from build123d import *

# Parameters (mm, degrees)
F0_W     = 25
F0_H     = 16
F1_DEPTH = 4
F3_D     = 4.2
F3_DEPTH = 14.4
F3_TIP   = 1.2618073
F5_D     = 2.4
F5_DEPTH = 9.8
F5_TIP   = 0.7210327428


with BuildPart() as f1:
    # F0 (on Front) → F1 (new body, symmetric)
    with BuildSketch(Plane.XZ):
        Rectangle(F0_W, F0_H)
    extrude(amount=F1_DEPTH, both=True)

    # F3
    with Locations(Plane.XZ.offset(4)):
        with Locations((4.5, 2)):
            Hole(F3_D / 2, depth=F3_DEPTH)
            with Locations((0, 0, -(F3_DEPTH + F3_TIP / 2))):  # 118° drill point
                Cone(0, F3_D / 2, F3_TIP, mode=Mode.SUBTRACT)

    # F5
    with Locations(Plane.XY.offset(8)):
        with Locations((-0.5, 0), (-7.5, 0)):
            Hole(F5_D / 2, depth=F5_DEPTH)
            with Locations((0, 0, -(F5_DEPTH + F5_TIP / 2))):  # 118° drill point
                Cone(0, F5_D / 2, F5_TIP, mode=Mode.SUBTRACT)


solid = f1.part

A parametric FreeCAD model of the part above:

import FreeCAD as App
import Part
import Sketcher


def add_polygon(sketch, points):
    """Adds a closed chain of lines whose ends are joined by coincident constraints."""
    first, n = sketch.GeometryCount, len(points)
    for a, b in zip(points, points[1:] + points[:1]):
        sketch.addGeometry(Part.LineSegment(App.Vector(*a, 0), App.Vector(*b, 0)), False)
    for i in range(n):
        sketch.addConstraint(Sketcher.Constraint("Coincident", first + i, 2, first + (i + 1) % n, 1))

doc = App.newDocument("Part")
body = doc.addObject("PartDesign::Body", "Body")

sketch1 = body.newObject("Sketcher::SketchObject", "Sketch")
sketch1.AttachmentSupport = (doc.getObject("XZ_Plane"), [""])
sketch1.MapMode = "FlatFace"
add_polygon(sketch1, [(-12, 8), (-12, -8), (12, -8), (12, 8)])
sketch1.addConstraint([
    Sketcher.Constraint("Vertical", 0),
    Sketcher.Constraint("Horizontal", 1),
    Sketcher.Constraint("Vertical", 2),
    Sketcher.Constraint("Horizontal", 3),
    Sketcher.Constraint("Symmetric", 0, 2, 2, 2, -1, 1),
    Sketcher.Constraint("DistanceX", 1, 1, 1, 2, 25.0),
    Sketcher.Constraint("DistanceY", 0, 2, 0, 1, 16.0),
])
pad1 = body.newObject("PartDesign::Pad", "Pad")
pad1.Profile = sketch1
pad1.Length = 8
pad1.Midplane = True

sketch2 = body.newObject("Sketcher::SketchObject", "Sketch001")
sketch2.AttachmentSupport = (doc.getObject("XZ_Plane"), [""])
sketch2.MapMode = "FlatFace"
sketch2.AttachmentOffset = App.Placement(App.Vector(0, 0, 4), App.Rotation())
sketch2.addGeometry(Part.Circle(App.Vector(4.5, 2, 0), App.Vector(0, 0, 1), 2.1), False)
sketch2.addConstraint([
    Sketcher.Constraint("Diameter", 0, 4.2),
    Sketcher.Constraint("DistanceY", -1, 1, 0, 3, 2.0),
    Sketcher.Constraint("DistanceX", -1, 1, 0, 3, 4.5),
])
doc.recompute()
hole = body.newObject("PartDesign::Hole", "Hole")
hole.Profile = sketch2
hole.ThreadType = "None"
hole.Diameter = 4.2
hole.DepthType = "Dimension"
hole.Depth = 14.4
hole.DrillPoint = "Angled"
hole.DrillPointAngle = 118

sketch3 = body.newObject("Sketcher::SketchObject", "Sketch002")
sketch3.AttachmentSupport = (doc.getObject("XY_Plane"), [""])
sketch3.MapMode = "FlatFace"
sketch3.AttachmentOffset = App.Placement(App.Vector(0, 0, 8), App.Rotation())
sketch3.addGeometry([
    Part.Circle(App.Vector(-0.5, 0, 0), App.Vector(0, 0, 1), 1.2),
    Part.Circle(App.Vector(-7.5, 0, 0), App.Vector(0, 0, 1), 1.2),
], False)
sketch3.addConstraint([
    Sketcher.Constraint("Equal", 0, 1),
    Sketcher.Constraint("PointOnObject", 0, 3, -1),
    Sketcher.Constraint("PointOnObject", 1, 3, -1),
    Sketcher.Constraint("Diameter", 0, 2.4),
    Sketcher.Constraint("DistanceX", 1, 3, 0, 3, 7.0),
    Sketcher.Constraint("DistanceX", 0, 3, -1, 1, 0.5),
])
doc.recompute()
hole2 = body.newObject("PartDesign::Hole", "Hole001")
hole2.Profile = sketch3
hole2.ThreadType = "None"
hole2.Diameter = 2.4
hole2.DepthType = "Dimension"
hole2.Depth = 9.8
hole2.DrillPoint = "Angled"
hole2.DrillPointAngle = 118

doc.recompute()
